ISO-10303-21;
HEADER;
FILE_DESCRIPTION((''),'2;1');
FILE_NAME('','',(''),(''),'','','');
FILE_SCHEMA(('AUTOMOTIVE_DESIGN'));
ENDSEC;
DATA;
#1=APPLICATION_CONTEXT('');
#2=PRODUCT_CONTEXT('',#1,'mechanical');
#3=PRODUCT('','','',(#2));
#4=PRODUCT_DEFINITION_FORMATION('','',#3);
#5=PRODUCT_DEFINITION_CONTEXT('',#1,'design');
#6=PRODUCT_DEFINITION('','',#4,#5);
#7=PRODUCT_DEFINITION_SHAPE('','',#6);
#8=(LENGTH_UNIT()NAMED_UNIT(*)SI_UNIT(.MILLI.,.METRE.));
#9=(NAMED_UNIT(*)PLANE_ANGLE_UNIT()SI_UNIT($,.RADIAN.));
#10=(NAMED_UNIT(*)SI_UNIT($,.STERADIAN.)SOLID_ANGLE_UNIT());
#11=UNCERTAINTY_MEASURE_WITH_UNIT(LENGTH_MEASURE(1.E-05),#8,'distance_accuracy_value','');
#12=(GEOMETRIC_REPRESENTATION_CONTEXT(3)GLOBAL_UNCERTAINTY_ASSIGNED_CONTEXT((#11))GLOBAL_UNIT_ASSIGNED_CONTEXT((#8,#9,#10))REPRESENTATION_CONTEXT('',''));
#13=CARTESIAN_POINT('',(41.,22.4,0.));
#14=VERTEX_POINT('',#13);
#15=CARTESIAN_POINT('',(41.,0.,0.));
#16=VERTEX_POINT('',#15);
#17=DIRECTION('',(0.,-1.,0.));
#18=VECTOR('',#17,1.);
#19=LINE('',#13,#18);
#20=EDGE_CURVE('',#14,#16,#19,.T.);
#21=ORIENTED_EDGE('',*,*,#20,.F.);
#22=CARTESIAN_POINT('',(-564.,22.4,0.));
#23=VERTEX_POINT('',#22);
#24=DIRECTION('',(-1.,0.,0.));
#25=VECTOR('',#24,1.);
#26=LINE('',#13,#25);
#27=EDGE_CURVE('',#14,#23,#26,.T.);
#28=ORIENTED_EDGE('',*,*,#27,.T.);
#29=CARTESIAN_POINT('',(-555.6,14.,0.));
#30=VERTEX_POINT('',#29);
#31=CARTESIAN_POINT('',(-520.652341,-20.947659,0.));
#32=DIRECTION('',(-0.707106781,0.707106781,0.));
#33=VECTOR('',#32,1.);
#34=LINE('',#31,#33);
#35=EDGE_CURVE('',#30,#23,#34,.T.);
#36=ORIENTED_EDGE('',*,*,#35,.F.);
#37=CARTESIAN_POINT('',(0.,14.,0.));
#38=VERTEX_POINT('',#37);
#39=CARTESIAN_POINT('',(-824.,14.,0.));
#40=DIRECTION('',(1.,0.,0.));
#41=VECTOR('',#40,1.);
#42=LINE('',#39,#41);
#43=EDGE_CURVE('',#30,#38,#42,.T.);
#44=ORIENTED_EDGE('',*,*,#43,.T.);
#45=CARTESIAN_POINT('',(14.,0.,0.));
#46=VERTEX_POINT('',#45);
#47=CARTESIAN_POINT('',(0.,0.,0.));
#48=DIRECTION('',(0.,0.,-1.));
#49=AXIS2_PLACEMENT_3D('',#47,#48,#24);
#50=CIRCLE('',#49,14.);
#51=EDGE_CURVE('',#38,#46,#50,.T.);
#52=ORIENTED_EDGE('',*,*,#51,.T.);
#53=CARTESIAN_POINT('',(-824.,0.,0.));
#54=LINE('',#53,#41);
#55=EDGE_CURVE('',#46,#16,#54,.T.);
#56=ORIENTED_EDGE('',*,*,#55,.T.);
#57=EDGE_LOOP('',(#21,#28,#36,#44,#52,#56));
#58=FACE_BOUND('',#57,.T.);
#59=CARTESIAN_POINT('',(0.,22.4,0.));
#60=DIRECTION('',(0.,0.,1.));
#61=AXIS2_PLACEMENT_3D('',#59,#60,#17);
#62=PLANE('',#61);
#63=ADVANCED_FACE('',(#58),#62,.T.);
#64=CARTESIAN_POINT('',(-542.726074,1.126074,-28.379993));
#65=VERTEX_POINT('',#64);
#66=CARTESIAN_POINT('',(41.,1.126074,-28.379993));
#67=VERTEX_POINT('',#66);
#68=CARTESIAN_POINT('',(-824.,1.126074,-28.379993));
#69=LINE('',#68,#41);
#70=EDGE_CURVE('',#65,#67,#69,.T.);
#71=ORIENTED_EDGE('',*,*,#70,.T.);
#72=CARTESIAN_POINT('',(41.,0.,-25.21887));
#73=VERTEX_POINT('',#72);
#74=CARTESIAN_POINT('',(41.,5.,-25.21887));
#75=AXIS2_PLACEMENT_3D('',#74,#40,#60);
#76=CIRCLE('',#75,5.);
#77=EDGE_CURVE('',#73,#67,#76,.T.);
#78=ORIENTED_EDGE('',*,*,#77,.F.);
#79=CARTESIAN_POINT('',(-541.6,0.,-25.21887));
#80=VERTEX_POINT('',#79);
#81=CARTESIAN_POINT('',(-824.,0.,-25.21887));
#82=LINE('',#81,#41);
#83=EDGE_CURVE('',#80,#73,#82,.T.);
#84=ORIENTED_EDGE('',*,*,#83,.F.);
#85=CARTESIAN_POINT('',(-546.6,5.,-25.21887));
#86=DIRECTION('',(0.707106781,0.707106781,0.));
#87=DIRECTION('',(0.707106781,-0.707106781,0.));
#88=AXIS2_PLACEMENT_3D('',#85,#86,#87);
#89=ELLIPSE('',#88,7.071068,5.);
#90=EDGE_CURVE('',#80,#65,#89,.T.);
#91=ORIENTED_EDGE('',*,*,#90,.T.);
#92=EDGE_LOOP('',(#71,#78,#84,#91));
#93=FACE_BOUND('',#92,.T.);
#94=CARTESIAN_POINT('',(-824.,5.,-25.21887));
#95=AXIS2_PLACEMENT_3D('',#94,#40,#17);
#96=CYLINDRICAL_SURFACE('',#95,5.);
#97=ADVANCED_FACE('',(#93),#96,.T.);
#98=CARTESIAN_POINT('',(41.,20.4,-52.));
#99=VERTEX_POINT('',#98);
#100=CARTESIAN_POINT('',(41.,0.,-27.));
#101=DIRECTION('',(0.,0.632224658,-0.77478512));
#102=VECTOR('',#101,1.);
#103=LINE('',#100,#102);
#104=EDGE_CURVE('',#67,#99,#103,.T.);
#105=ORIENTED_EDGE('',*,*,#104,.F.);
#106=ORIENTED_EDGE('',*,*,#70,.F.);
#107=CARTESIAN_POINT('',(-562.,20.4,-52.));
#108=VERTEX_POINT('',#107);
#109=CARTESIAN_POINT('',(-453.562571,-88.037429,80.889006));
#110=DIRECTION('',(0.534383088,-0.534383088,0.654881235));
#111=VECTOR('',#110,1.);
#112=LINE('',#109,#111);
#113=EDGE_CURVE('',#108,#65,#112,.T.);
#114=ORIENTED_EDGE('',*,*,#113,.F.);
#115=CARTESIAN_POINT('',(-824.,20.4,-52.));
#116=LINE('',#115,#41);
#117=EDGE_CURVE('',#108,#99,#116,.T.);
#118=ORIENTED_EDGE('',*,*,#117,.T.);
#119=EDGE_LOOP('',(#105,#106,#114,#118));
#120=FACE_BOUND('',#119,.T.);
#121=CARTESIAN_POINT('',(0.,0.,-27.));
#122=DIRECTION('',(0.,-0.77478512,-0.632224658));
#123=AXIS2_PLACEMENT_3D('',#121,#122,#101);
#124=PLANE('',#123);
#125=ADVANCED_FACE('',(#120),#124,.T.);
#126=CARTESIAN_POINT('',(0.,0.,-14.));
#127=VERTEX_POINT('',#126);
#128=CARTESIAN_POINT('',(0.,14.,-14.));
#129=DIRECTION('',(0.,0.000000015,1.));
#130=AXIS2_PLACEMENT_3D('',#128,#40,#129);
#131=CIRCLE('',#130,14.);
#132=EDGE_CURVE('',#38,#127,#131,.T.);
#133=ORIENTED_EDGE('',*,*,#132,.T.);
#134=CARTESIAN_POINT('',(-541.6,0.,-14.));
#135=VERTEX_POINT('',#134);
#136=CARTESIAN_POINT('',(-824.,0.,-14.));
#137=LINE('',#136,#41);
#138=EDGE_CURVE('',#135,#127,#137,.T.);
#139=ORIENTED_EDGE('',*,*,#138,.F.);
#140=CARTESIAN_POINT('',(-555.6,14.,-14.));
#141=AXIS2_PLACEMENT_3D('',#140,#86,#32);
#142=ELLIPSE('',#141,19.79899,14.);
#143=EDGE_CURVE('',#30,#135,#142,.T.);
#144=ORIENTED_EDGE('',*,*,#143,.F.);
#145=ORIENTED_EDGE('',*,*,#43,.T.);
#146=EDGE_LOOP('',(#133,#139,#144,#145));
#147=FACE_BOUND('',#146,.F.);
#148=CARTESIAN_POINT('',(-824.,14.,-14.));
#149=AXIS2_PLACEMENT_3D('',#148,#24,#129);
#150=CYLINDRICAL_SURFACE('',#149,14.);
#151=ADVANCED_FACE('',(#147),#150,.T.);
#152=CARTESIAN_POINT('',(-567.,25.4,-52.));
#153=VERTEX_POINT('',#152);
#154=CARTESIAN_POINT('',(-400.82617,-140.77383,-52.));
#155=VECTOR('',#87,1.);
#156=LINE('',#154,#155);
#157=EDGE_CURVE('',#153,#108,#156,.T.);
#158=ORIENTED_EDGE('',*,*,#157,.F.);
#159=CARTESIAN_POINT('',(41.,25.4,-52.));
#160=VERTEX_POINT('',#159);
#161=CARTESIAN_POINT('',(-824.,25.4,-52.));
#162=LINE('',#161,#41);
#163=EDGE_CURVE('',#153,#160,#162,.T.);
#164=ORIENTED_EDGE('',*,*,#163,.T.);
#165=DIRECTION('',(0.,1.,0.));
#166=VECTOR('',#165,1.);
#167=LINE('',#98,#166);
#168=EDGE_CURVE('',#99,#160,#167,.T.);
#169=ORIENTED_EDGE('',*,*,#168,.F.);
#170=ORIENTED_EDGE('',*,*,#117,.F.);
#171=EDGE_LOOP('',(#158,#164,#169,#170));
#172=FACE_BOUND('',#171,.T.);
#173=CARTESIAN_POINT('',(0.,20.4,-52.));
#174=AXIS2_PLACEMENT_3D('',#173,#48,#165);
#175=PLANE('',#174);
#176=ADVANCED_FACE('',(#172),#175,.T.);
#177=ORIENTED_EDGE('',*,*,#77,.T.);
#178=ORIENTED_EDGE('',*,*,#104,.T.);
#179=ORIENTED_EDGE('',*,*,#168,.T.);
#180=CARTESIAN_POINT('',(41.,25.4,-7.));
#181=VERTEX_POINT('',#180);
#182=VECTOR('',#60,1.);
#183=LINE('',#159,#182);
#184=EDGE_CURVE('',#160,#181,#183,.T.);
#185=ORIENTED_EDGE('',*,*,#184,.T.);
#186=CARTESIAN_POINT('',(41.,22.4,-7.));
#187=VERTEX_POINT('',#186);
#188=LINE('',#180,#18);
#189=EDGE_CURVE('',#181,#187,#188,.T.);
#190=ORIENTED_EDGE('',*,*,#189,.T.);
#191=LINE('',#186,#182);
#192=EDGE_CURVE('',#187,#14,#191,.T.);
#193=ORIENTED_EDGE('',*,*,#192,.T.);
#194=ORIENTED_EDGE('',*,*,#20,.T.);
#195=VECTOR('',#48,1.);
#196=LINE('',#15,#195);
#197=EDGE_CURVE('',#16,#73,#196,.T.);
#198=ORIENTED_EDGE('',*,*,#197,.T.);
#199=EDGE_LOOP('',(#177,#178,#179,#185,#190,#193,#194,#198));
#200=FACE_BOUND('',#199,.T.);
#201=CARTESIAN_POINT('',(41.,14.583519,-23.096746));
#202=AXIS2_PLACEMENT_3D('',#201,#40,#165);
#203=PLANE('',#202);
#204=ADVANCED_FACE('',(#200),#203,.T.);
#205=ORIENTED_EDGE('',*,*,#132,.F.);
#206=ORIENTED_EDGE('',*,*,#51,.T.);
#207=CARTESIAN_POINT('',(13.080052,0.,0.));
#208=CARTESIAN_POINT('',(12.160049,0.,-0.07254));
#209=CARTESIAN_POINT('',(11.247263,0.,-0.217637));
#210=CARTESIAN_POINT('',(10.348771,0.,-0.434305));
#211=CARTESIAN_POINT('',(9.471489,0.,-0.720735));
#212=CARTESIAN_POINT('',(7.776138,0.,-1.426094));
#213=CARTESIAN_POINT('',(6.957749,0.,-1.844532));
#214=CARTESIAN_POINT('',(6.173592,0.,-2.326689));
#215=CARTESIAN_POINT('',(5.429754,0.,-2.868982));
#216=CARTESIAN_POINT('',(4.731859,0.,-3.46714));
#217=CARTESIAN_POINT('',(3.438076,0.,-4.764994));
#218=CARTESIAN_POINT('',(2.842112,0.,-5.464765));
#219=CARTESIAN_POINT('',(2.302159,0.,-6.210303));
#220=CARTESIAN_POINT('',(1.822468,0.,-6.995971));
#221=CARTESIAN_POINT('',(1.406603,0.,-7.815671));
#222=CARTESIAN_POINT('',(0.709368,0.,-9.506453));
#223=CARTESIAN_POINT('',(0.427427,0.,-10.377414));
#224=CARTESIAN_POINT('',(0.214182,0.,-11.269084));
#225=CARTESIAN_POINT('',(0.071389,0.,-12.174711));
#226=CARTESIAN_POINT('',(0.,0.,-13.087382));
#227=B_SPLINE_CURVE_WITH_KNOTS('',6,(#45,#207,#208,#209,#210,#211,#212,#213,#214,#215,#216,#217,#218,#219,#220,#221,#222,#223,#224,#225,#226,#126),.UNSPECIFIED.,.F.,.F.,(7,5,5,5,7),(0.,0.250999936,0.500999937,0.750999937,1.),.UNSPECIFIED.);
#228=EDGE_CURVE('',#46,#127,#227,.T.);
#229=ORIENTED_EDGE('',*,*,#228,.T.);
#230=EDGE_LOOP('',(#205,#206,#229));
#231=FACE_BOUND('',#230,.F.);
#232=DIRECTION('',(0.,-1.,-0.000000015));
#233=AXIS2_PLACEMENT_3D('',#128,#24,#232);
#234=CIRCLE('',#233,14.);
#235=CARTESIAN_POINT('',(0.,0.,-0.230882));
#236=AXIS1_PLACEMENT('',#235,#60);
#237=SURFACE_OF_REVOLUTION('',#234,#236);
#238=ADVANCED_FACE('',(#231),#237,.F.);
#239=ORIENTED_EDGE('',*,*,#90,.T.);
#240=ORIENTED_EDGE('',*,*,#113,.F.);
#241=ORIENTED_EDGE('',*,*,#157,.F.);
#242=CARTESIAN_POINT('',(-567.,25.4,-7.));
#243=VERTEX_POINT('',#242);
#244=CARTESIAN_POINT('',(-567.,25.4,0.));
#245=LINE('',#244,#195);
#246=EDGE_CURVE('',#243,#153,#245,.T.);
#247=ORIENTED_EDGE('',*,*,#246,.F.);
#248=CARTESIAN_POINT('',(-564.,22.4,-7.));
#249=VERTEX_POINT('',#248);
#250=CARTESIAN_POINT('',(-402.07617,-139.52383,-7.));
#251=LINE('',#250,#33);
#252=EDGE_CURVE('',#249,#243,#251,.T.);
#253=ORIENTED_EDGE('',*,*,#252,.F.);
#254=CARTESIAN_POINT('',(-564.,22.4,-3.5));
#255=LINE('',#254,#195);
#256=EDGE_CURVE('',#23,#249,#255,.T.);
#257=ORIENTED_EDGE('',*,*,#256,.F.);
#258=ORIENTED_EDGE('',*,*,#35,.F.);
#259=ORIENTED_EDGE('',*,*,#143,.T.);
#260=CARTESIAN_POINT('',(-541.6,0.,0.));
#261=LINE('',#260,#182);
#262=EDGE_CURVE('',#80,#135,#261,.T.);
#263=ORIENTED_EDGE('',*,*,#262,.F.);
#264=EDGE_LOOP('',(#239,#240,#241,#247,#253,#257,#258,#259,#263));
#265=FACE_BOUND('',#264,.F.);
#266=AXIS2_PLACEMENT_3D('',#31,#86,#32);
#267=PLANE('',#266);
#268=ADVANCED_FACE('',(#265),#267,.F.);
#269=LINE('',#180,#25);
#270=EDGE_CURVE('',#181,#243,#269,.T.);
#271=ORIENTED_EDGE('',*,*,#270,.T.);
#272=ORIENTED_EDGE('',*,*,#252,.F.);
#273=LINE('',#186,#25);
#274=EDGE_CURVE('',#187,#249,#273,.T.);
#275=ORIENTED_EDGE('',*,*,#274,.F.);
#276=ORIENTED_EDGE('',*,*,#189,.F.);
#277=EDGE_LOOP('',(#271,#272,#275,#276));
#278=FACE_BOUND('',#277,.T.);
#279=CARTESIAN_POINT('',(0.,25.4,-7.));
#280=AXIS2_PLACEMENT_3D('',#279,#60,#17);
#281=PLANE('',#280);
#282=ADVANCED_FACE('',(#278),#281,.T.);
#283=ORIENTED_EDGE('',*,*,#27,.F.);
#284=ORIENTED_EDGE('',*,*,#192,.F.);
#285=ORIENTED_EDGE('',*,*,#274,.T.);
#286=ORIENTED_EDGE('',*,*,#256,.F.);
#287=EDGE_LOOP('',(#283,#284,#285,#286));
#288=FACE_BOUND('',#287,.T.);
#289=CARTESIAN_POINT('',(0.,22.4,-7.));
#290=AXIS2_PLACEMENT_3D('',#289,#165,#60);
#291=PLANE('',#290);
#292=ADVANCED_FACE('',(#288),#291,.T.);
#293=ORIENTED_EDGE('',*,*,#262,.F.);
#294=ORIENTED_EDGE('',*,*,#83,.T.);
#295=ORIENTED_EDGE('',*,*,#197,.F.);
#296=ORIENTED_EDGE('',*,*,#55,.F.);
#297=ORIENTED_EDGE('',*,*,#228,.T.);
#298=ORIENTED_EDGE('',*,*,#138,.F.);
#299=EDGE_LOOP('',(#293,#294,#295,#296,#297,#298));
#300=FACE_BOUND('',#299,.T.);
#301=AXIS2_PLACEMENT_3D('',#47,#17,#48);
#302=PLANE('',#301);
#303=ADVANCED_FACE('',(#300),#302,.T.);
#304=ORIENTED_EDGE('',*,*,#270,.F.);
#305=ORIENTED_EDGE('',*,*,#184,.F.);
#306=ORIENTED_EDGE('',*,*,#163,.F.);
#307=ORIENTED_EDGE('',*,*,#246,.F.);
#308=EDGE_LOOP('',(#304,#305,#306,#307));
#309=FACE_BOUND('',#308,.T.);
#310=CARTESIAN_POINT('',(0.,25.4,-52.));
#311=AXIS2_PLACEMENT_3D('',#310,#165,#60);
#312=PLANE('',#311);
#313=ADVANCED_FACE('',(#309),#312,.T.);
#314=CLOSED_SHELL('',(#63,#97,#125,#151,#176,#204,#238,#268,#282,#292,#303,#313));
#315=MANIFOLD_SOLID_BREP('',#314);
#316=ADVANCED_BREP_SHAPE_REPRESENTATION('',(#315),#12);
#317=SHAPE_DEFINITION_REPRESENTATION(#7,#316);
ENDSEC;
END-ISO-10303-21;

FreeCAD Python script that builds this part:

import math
import FreeCAD as App
import Part
import Sketcher
Q = App.Units.Quantity


def edges_at(feature, points):
    """Names of the edges that pass closest to the given points."""
    edges = feature.Shape.Edges
    near = lambda p: min(range(len(edges)), key=lambda i: edges[i].distToShape(Part.Vertex(*p))[0])
    return sorted({f"Edge{near(p) + 1}" for p in points})


def add_polygon(sketch, points):
    """Adds a closed chain of lines whose ends are joined by coincident constraints."""
    first, n = sketch.GeometryCount, len(points)
    for a, b in zip(points, points[1:] + points[:1]):
        sketch.addGeometry(Part.LineSegment(App.Vector(*a, 0), App.Vector(*b, 0)), False)
    for i in range(n):
        sketch.addConstraint(Sketcher.Constraint("Coincident", first + i, 2, first + (i + 1) % n, 1))

doc = App.newDocument("Part")
params = doc.addObject("Spreadsheet::Sheet", "Params")
for row, (alias, value) in enumerate([
    ("sketch1_width", "5 mm"),
    ("sketch1_width2", "3 mm"),
    ("sketch1_height", "27 mm"),
    ("sketch1_height2", "45 mm"),
    ("sketch1_height3", "7 mm"),
    ("pad1_length", "41 mm"),
    ("pad1_length2", "824 mm"),
    ("sketch2_radius", "14 mm"),
    ("sketch2_width", "14 mm"),
    ("groove_angle", "360 deg"),
    ("sketch3_radius", "14 mm"),
    ("pocket1_length", "824 mm"),
    ("fillet_radius", "5 mm"),
], start=1):
    params.set(f"A{row}", alias)
    params.set(f"B{row}", "=" + value)
    params.setAlias(f"B{row}", alias)

body = doc.addObject("PartDesign::Body", "Body")

sketch1 = doc.addObject("Sketcher::SketchObject", "Sketch")
body.addObject(sketch1)
sketch1.AttachmentSupport = (doc.YZ_Plane, [""])
sketch1.MapMode = "FlatFace"
add_polygon(sketch1, [(22.4, 0), (0, 0), (0, -27), (20.4, -52), (25.4, -52), (25.4, -7), (22.4, -7)])
sketch1.addConstraint(Sketcher.Constraint("Horizontal", 0))
sketch1.addConstraint(Sketcher.Constraint("Vertical", 1))
sketch1.addConstraint(Sketcher.Constraint("Horizontal", 3))
sketch1.addConstraint(Sketcher.Constraint("Vertical", 4))
sketch1.addConstraint(Sketcher.Constraint("Horizontal", 5))
sketch1.addConstraint(Sketcher.Constraint("Vertical", 6))
sketch1.addConstraint(Sketcher.Constraint("Coincident", 0, 2, -1, 1))
sketch1.addConstraint(Sketcher.Constraint("DistanceX", 3, 1, 3, 2, Q("5 mm")))
sketch1.addConstraint(Sketcher.Constraint("DistanceX", 5, 2, 5, 1, Q("3 mm")))
sketch1.addConstraint(Sketcher.Constraint("DistanceY", 1, 2, 1, 1, Q("27 mm")))
sketch1.addConstraint(Sketcher.Constraint("DistanceY", 4, 1, 4, 2, Q("45 mm")))
sketch1.addConstraint(Sketcher.Constraint("DistanceY", 6, 1, 6, 2, Q("7 mm")))
sketch1.addConstraint(Sketcher.Constraint("DistanceX", 0, 2, 0, 1, Q("22.4 mm")))
sketch1.setExpression("Constraints[14]", "Params.sketch1_width")
sketch1.setExpression("Constraints[15]", "Params.sketch1_width2")
sketch1.setExpression("Constraints[16]", "Params.sketch1_height")
sketch1.setExpression("Constraints[17]", "Params.sketch1_height2")
sketch1.setExpression("Constraints[18]", "Params.sketch1_height3")
pad1 = doc.addObject("PartDesign::Pad", "Pad")
body.addObject(pad1)
pad1.Profile = sketch1
pad1.Type = "TwoLengths"
pad1.setExpression("Length", "Params.pad1_length")
pad1.setExpression("Length2", "Params.pad1_length2")

sketch2 = doc.addObject("Sketcher::SketchObject", "Sketch001")
body.addObject(sketch2)
sketch2.AttachmentSupport = (doc.YZ_Plane, [""])
sketch2.MapMode = "FlatFace"
sketch2.addGeometry(Part.ArcOfCircle(Part.Circle(App.Vector(14, -14, 0), App.Vector(0, 0, 1), 14), math.radians(89.999999), math.radians(180.000001)), False)
sketch2.addGeometry(Part.LineSegment(App.Vector(14, 0, 0), App.Vector(14, 13.538237, 0)), False)
sketch2.addGeometry(Part.LineSegment(App.Vector(14, 13.538237, 0), App.Vector(0, 13.538237, 0)), False)
sketch2.addGeometry(Part.LineSegment(App.Vector(0, 13.538237, 0), App.Vector(0, -14, 0)), False)
sketch2.addConstraint(Sketcher.Constraint("Coincident", 0, 1, 1, 1))
sketch2.addConstraint(Sketcher.Constraint("Coincident", 1, 2, 2, 1))
sketch2.addConstraint(Sketcher.Constraint("Coincident", 2, 2, 3, 1))
sketch2.addConstraint(Sketcher.Constraint("Tangent", 3, 2, 0, 2))
sketch2.addConstraint(Sketcher.Constraint("Vertical", 1))
sketch2.addConstraint(Sketcher.Constraint("Horizontal", 2))
sketch2.addConstraint(Sketcher.Constraint("Vertical", 3))
sketch2.addConstraint(Sketcher.Constraint("PointOnObject", 0, 1, -1))
sketch2.addConstraint(Sketcher.Constraint("PointOnObject", 2, 2, -2))
sketch2.addConstraint(Sketcher.Constraint("Radius", 0, Q("14 mm")))
sketch2.addConstraint(Sketcher.Constraint("DistanceX", 2, 2, 2, 1, Q("14 mm")))
sketch2.addConstraint(Sketcher.Constraint("DistanceY", 1, 1, 1, 2, Q("13.538237 mm")))
sketch2.setExpression("Constraints[9]", "Params.sketch2_radius")
sketch2.setExpression("Constraints[10]", "Params.sketch2_width")
groove = doc.addObject("PartDesign::Groove", "Groove")
body.addObject(groove)
groove.Profile = sketch2
groove.ReferenceAxis = (sketch2, ["V_Axis"])
groove.setExpression("Angle", "Params.groove_angle")

sketch3 = doc.addObject("Sketcher::SketchObject", "Sketch002")
body.addObject(sketch3)
sketch3.AttachmentSupport = (doc.YZ_Plane, [""])
sketch3.MapMode = "FlatFace"
sketch3.AttachmentOffset = App.Placement(App.Vector(0, 0, -824), App.Rotation())
sketch3.addGeometry(Part.LineSegment(App.Vector(14, 13.538237, 0), App.Vector(14, 0, 0)), False)
sketch3.addGeometry(Part.ArcOfCircle(Part.Circle(App.Vector(14, -14, 0), App.Vector(0, 0, 1), 14), math.radians(89.999999), math.radians(180.000001)), False)
sketch3.addGeometry(Part.LineSegment(App.Vector(0, -14, 0), App.Vector(0, 13.538237, 0)), False)
sketch3.addGeometry(Part.LineSegment(App.Vector(0, 13.538237, 0), App.Vector(14, 13.538237, 0)), False)
sketch3.addConstraint(Sketcher.Constraint("Coincident", 0, 2, 1, 1))
sketch3.addConstraint(Sketcher.Constraint("Tangent", 1, 2, 2, 1))
sketch3.addConstraint(Sketcher.Constraint("Coincident", 2, 2, 3, 1))
sketch3.addConstraint(Sketcher.Constraint("Coincident", 3, 2, 0, 1))
sketch3.addConstraint(Sketcher.Constraint("Vertical", 0))
sketch3.addConstraint(Sketcher.Constraint("Vertical", 2))
sketch3.addConstraint(Sketcher.Constraint("Horizontal", 3))
sketch3.addConstraint(Sketcher.Constraint("PointOnObject", 0, 2, -1))
sketch3.addConstraint(Sketcher.Constraint("PointOnObject", 1, 2, -2))
sketch3.addConstraint(Sketcher.Constraint("Vertical", 1, 3, 0, 2))
sketch3.addConstraint(Sketcher.Constraint("Radius", 1, Q("14 mm")))
sketch3.addConstraint(Sketcher.Constraint("DistanceY", 0, 2, 0, 1, Q("13.538237 mm")))
sketch3.setExpression("Constraints[10]", "Params.sketch3_radius")
pocket1 = doc.addObject("PartDesign::Pocket", "Pocket")
body.addObject(pocket1)
pocket1.Profile = sketch3
pocket1.setExpression("Length", "Params.pocket1_length")
pocket1.Reversed = True
doc.recompute()

fillet = doc.addObject("PartDesign::Fillet", "Fillet")
body.addObject(fillet)
fillet.Base = (pocket1, edges_at(pocket1, [(-391.5, 0, -27)]))
fillet.setExpression("Radius", "Params.fillet_radius")

sketch4 = doc.addObject("Sketcher::SketchObject", "Sketch003")
body.addObject(sketch4)
sketch4.AttachmentSupport = (doc.XY_Plane, [""])
sketch4.MapMode = "FlatFace"
add_polygon(sketch4, [(-520.652341, -20.947659), (-567, 25.4), (-818.416774, 72.289795), (-858.546881, 112.419901), (-858.546881, -20.947659)])
sketch4.addConstraint(Sketcher.Constraint("Vertical", 3))
sketch4.addConstraint(Sketcher.Constraint("Horizontal", 4))
sketch4.addConstraint(Sketcher.Constraint("Parallel", 0, 2))
sketch4.addConstraint(Sketcher.Constraint("Angle", 0, Q("135 deg")))
sketch4.addConstraint(Sketcher.Constraint("DistanceX", 0, 2, -1, 1, Q("567 mm")))
sketch4.addConstraint(Sketcher.Constraint("DistanceY", -1, 1, 0, 2, Q("25.4 mm")))
sketch4.addConstraint(Sketcher.Constraint("DistanceX", 4, 1, 4, 2, Q("337.89454 mm")))
sketch4.addConstraint(Sketcher.Constraint("DistanceY", 3, 2, 3, 1, Q("133.36756 mm")))
sketch4.addConstraint(Sketcher.Constraint("DistanceY", -1, 1, 2, 2, Q("112.419901 mm")))
sketch4.addConstraint(Sketcher.Constraint("Distance", 2, Q("56.752541 mm")))
pocket2 = doc.addObject("PartDesign::Pocket", "Pocket001")
body.addObject(pocket2)
pocket2.Profile = sketch4
pocket2.Type = "ThroughAll"

doc.recompute()
